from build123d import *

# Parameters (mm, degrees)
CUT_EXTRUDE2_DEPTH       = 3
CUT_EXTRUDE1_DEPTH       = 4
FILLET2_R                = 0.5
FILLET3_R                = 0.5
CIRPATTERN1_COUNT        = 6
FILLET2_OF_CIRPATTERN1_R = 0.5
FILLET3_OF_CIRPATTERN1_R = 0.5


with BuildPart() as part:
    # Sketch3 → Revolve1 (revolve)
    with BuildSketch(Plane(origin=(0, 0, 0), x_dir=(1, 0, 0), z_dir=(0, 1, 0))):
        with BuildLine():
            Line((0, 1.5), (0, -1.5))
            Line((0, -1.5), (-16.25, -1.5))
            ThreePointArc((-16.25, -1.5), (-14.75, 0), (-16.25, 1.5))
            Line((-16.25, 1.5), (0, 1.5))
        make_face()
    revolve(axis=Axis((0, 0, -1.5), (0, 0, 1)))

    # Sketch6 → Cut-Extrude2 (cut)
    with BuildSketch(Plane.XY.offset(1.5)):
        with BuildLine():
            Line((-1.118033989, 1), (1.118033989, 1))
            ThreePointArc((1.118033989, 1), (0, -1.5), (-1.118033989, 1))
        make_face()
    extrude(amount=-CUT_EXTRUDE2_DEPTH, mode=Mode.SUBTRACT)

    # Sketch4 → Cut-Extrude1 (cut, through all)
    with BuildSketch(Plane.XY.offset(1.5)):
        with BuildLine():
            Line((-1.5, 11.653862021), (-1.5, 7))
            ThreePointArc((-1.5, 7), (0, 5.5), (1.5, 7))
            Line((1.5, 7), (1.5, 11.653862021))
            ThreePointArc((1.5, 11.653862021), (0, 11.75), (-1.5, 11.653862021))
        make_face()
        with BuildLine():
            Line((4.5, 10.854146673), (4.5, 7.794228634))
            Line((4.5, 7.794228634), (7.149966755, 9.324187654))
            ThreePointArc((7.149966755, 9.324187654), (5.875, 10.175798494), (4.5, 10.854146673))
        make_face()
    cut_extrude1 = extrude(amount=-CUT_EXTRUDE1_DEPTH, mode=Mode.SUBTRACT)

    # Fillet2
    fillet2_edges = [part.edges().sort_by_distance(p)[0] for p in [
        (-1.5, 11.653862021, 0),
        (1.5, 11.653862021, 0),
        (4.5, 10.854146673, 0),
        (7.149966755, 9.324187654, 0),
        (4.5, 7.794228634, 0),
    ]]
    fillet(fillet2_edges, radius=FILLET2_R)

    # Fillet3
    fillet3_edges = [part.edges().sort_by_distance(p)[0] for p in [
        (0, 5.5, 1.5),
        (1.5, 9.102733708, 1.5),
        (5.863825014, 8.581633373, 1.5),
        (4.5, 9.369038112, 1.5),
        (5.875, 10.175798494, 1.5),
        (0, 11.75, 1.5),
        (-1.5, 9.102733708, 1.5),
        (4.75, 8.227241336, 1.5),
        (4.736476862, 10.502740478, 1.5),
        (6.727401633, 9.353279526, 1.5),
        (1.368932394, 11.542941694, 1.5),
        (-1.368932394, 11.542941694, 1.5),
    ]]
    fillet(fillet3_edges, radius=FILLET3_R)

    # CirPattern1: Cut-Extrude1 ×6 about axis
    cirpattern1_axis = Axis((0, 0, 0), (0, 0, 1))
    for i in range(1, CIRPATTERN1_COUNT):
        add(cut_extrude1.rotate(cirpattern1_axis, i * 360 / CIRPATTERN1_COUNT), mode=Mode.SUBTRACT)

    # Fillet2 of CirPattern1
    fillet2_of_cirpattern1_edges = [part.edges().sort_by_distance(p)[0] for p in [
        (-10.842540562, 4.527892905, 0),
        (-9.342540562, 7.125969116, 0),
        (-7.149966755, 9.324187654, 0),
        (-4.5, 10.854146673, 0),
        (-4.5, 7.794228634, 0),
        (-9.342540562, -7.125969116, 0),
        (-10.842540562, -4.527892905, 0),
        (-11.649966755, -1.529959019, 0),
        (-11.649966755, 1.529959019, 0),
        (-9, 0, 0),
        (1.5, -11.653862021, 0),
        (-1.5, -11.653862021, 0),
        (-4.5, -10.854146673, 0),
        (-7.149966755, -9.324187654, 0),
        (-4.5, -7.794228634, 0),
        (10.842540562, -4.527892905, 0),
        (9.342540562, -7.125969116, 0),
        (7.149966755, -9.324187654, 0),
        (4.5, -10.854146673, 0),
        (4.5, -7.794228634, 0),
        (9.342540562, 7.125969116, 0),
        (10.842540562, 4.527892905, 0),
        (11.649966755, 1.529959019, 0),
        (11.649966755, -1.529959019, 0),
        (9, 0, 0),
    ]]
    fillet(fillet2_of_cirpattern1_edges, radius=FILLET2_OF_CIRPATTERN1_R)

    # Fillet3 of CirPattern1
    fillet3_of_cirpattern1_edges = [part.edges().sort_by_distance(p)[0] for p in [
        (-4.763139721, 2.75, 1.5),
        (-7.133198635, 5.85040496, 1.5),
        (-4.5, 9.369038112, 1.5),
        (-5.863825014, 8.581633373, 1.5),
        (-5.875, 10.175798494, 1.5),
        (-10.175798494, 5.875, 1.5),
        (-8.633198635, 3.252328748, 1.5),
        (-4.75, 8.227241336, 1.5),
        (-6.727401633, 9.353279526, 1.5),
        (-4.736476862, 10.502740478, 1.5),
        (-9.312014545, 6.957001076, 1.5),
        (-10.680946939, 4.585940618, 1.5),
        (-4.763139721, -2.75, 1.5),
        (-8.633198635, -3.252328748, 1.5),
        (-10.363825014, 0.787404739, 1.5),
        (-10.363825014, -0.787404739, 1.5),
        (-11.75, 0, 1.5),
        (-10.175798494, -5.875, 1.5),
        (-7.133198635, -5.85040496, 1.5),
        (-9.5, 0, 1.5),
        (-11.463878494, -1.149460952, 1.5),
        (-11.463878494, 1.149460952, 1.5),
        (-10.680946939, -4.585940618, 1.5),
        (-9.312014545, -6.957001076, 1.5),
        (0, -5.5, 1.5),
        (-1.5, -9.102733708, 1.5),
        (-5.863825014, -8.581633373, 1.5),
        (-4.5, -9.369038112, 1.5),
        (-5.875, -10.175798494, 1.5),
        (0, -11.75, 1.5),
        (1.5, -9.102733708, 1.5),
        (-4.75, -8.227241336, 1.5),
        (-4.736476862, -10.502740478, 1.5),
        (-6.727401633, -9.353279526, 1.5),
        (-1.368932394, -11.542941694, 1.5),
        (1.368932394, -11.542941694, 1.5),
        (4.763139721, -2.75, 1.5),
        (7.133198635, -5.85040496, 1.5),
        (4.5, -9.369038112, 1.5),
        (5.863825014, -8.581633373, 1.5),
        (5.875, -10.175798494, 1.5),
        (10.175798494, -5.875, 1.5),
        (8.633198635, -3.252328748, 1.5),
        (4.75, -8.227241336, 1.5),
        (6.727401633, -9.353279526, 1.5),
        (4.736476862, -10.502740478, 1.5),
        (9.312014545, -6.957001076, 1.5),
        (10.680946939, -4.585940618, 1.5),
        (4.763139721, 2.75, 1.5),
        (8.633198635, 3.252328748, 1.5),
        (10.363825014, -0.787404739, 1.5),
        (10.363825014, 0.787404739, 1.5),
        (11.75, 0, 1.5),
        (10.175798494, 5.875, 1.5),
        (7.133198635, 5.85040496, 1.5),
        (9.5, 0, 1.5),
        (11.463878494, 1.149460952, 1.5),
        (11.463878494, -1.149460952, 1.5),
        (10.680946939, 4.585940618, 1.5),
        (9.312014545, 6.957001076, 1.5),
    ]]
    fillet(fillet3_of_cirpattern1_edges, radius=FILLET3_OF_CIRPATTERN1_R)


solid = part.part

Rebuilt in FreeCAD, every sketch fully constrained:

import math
import FreeCAD as App
import Part
import Sketcher

V = App.Vector
Q = App.Units.Quantity


def edges_at(feature, points):
    """Names of the edges that pass closest to the given points."""
    edges = feature.Shape.Edges
    near = lambda p: min(range(len(edges)), key=lambda i: edges[i].distToShape(Part.Vertex(*p))[0])
    return sorted({f"Edge{near(p) + 1}" for p in points})

doc = App.newDocument("Part")
params = doc.addObject("Spreadsheet::Sheet", "Params")
for row, (alias, value) in enumerate([
    ("sketch1_radius", "1.5 mm"),
    ("sketch1_width", "16.25 mm"),
    ("revolution_angle", "360 deg"),
    ("sketch2_radius", "1.5 mm"),
    ("pocket1_length", "3 mm"),
    ("sketch3_radius", "1.5 mm"),
    ("sketch3_radius2", "11.75 mm"),
    ("fillet_radius", "0.5 mm"),
    ("fillet2_radius", "0.5 mm"),
    ("fillet3_radius", "0.5 mm"),
    ("fillet4_radius", "0.5 mm"),
], start=1):
    params.set(f"A{row}", alias)
    params.set(f"B{row}", "=" + value)
    params.setAlias(f"B{row}", alias)

body = doc.addObject("PartDesign::Body", "Body")

# Sketch on XZ plane
sketch1 = body.newObject("Sketcher::SketchObject", "Sketch")
sketch1.AttachmentSupport = (doc.getObject("XZ_Plane"), [""])
sketch1.MapMode = "FlatFace"
sketch1.addGeometry([
    Part.LineSegment(V(0, 1.5, 0), V(0, -1.5, 0)),
    Part.LineSegment(V(0, -1.5, 0), V(-16.2, -1.5, 0)),
    Part.ArcOfCircle(Part.Circle(V(-16.2, 0, 0), V(0, 0, 1), 1.5), math.radians(-90), math.radians(90)),
    Part.LineSegment(V(-16.2, 1.5, 0), V(0, 1.5, 0)),
], False)
sketch1.addConstraint([
    Sketcher.Constraint("Coincident", 0, 2, 1, 1),
    Sketcher.Constraint("Tangent", 1, 2, 2, 1),
    Sketcher.Constraint("Tangent", 2, 2, 3, 1),
    Sketcher.Constraint("Coincident", 3, 2, 0, 1),
    Sketcher.Constraint("Vertical", 0),
    Sketcher.Constraint("Horizontal", 1),
    Sketcher.Constraint("Horizontal", 3),
    Sketcher.Constraint("Symmetric", 0, 2, 3, 2, -1, 1),
    Sketcher.Constraint("Radius", 2, Q("1.5 mm")),
    Sketcher.Constraint("DistanceX", 1, 2, 1, 1, Q("16.25 mm")),
])
sketch1.setExpression("Constraints[8]", "Params.sketch1_radius")
sketch1.setExpression("Constraints[9]", "Params.sketch1_width")
revolution = body.newObject("PartDesign::Revolution", "Revolution")
revolution.Profile = sketch1
revolution.ReferenceAxis = (sketch1, ["V_Axis"])
revolution.setExpression("Angle", "Params.revolution_angle")

# Sketch on XY plane
sketch2 = body.newObject("Sketcher::SketchObject", "Sketch001")
sketch2.AttachmentSupport = (doc.getObject("XY_Plane"), [""])
sketch2.MapMode = "FlatFace"
sketch2.AttachmentOffset = App.Placement(V(0, 0, 1.5), App.Rotation())
sketch2.addGeometry([
    Part.LineSegment(V(1.1, 1, 0), V(-1.1, 1, 0)),
    Part.ArcOfCircle(Part.Circle(V(0, 0, 0), V(0, 0, 1), 1.5), math.radians(138), math.radians(402)),
], False)
sketch2.addConstraint([
    Sketcher.Constraint("Coincident", 0, 1, 1, 2),
    Sketcher.Constraint("Coincident", 1, 1, 0, 2),
    Sketcher.Constraint("Horizontal", 0),
    Sketcher.Constraint("Coincident", 1, 3, -1, 1),
    Sketcher.Constraint("Radius", 1, Q("1.5 mm")),
    Sketcher.Constraint("DistanceY", -1, 1, 0, 1, Q("1 mm")),
])
sketch2.setExpression("Constraints[4]", "Params.sketch2_radius")
pocket1 = body.newObject("PartDesign::Pocket", "Pocket")
pocket1.Profile = sketch2
pocket1.setExpression("Length", "Params.pocket1_length")

# Sketch on XY plane
sketch3 = body.newObject("Sketcher::SketchObject", "Sketch002")
sketch3.AttachmentSupport = (doc.getObject("XY_Plane"), [""])
sketch3.MapMode = "FlatFace"
sketch3.AttachmentOffset = App.Placement(V(0, 0, 1.5), App.Rotation())
sketch3.addGeometry([
    Part.LineSegment(V(-1.5, 11.7, 0), V(-1.5, 7, 0)),  # 0
    Part.ArcOfCircle(Part.Circle(V(0, 7, 0), V(0, 0, 1), 1.5), math.radians(180), math.radians(360)),  # 1
    Part.LineSegment(V(1.5, 7, 0), V(1.5, 11.7, 0)),  # 2
    Part.ArcOfCircle(Part.Circle(V(0, 0, 0), V(0, 0, 1), 11.8), math.radians(82.67), math.radians(97.33)),  # 3
    Part.LineSegment(V(4.5, 10.9, 0), V(4.5, 7.8, 0)),  # 4
    Part.LineSegment(V(4.5, 7.8, 0), V(7.1, 9.3, 0)),  # 5
    Part.ArcOfCircle(Part.Circle(V(0, 0, 0), V(0, 0, 1), 11.8), math.radians(52.52), math.radians(67.48)),  # 6
], False)
sketch3.addConstraint([
    Sketcher.Constraint("Tangent", 0, 2, 1, 1),
    Sketcher.Constraint("Tangent", 1, 2, 2, 1),
    Sketcher.Constraint("Coincident", 2, 2, 3, 1),
    Sketcher.Constraint("Coincident", 3, 2, 0, 1),
    Sketcher.Constraint("Coincident", 4, 2, 5, 1),
    Sketcher.Constraint("Coincident", 5, 2, 6, 1),
    Sketcher.Constraint("Coincident", 6, 2, 4, 1),
    Sketcher.Constraint("Vertical", 0),
    Sketcher.Constraint("Vertical", 2),
    Sketcher.Constraint("Vertical", 4),
    Sketcher.Constraint("Coincident", 3, 3, -1, 1),
    Sketcher.Constraint("Coincident", 6, 3, -1, 1),
    Sketcher.Constraint("Equal", 3, 6),
    Sketcher.Constraint("PointOnObject", 1, 3, -2),
    Sketcher.Constraint("Radius", 1, Q("1.5 mm")),
    Sketcher.Constraint("Angle", 5, Q("30 deg")),
    Sketcher.Constraint("Radius", 3, Q("11.75 mm")),
    Sketcher.Constraint("DistanceY", -1, 1, 1, 3, Q("7 mm")),
    Sketcher.Constraint("DistanceX", 1, 2, 4, 2, Q("3 mm")),
    Sketcher.Constraint("DistanceY", 4, 2, 4, 1, Q("3.059918 mm")),
])
sketch3.setExpression("Constraints[14]", "Params.sketch3_radius")
sketch3.setExpression("Constraints[16]", "Params.sketch3_radius2")
pocket2 = body.newObject("PartDesign::Pocket", "Pocket001")
pocket2.Profile = sketch3
pocket2.Type = "ThroughAll"
doc.recompute()

fillet = body.newObject("PartDesign::Fillet", "Fillet")
fillet.Base = (pocket2, edges_at(pocket2, [
    (-1.5, 11.654, 0),
    (1.5, 11.654, 0),
    (4.5, 10.854, 0),
    (7.15, 9.324, 0),
    (4.5, 7.794, 0),
]))
fillet.setExpression("Radius", "Params.fillet_radius")
doc.recompute()

fillet2 = body.newObject("PartDesign::Fillet", "Fillet001")
fillet2.Base = (fillet, edges_at(fillet, [
    (0, 5.5, 1.5),
    (1.5, 9.103, 1.5),
    (5.864, 8.582, 1.5),
    (4.5, 9.369, 1.5),
    (5.875, 10.176, 1.5),
    (0, 11.75, 1.5),
    (-1.5, 9.103, 1.5),
    (4.75, 8.227, 1.5),
    (4.736, 10.503, 1.5),
    (6.727, 9.353, 1.5),
    (1.369, 11.543, 1.5),
    (-1.369, 11.543, 1.5),
]))
fillet2.setExpression("Radius", "Params.fillet2_radius")
doc.recompute()

polarpattern = body.newObject("PartDesign::PolarPattern", "PolarPattern")
polarpattern.Originals = [pocket2]
polarpattern.Axis = (doc.getObject("Z_Axis"), [""])
polarpattern.Angle = 360
polarpattern.Occurrences = 6
body.Tip = polarpattern
doc.recompute()

fillet3 = body.newObject("PartDesign::Fillet", "Fillet002")
fillet3.Base = (polarpattern, edges_at(polarpattern, [
    (-10.843, 4.528, 0),
    (-9.343, 7.126, 0),
    (-7.15, 9.324, 0),
    (-4.5, 10.854, 0),
    (-4.5, 7.794, 0),
    (-9.343, -7.126, 0),
    (-10.843, -4.528, 0),
    (-11.65, -1.53, 0),
    (-11.65, 1.53, 0),
    (-9, 0, 0),
    (1.5, -11.654, 0),
    (-1.5, -11.654, 0),
    (-4.5, -10.854, 0),
    (-7.15, -9.324, 0),
    (-4.5, -7.794, 0),
    (10.843, -4.528, 0),
    (9.343, -7.126, 0),
    (7.15, -9.324, 0),
    (4.5, -10.854, 0),
    (4.5, -7.794, 0),
    (9.343, 7.126, 0),
    (10.843, 4.528, 0),
    (11.65, 1.53, 0),
    (11.65, -1.53, 0),
    (9, 0, 0),
]))
fillet3.setExpression("Radius", "Params.fillet3_radius")
doc.recompute()

fillet4 = body.newObject("PartDesign::Fillet", "Fillet003")
fillet4.Base = (fillet3, edges_at(fillet3, [
    (-4.763, 2.75, 1.5),
    (-7.133, 5.85, 1.5),
    (-4.5, 9.369, 1.5),
    (-5.864, 8.582, 1.5),
    (-5.875, 10.176, 1.5),
    (-10.176, 5.875, 1.5),
    (-8.633, 3.252, 1.5),
    (-4.75, 8.227, 1.5),
    (-6.727, 9.353, 1.5),
    (-4.736, 10.503, 1.5),
    (-9.312, 6.957, 1.5),
    (-10.681, 4.586, 1.5),
    (-4.763, -2.75, 1.5),
    (-8.633, -3.252, 1.5),
    (-10.364, 0.787, 1.5),
    (-10.364, -0.787, 1.5),
    (-11.75, 0, 1.5),
    (-10.176, -5.875, 1.5),
    (-7.133, -5.85, 1.5),
    (-9.5, 0, 1.5),
    (-11.464, -1.149, 1.5),
    (-11.464, 1.149, 1.5),
    (-10.681, -4.586, 1.5),
    (-9.312, -6.957, 1.5),
    (0, -5.5, 1.5),
    (-1.5, -9.103, 1.5),
    (-5.864, -8.582, 1.5),
    (-4.5, -9.369, 1.5),
    (-5.875, -10.176, 1.5),
    (0, -11.75, 1.5),
    (1.5, -9.103, 1.5),
    (-4.75, -8.227, 1.5),
    (-4.736, -10.503, 1.5),
    (-6.727, -9.353, 1.5),
    (-1.369, -11.543, 1.5),
    (1.369, -11.543, 1.5),
    (4.763, -2.75, 1.5),
    (7.133, -5.85, 1.5),
    (4.5, -9.369, 1.5),
    (5.864, -8.582, 1.5),
    (5.875, -10.176, 1.5),
    (10.176, -5.875, 1.5),
    (8.633, -3.252, 1.5),
    (4.75, -8.227, 1.5),
    (6.727, -9.353, 1.5),
    (4.736, -10.503, 1.5),
    (9.312, -6.957, 1.5),
    (10.681, -4.586, 1.5),
    (4.763, 2.75, 1.5),
    (8.633, 3.252, 1.5),
    (10.364, -0.787, 1.5),
    (10.364, 0.787, 1.5),
    (11.75, 0, 1.5),
    (10.176, 5.875, 1.5),
    (7.133, 5.85, 1.5),
    (9.5, 0, 1.5),
    (11.464, 1.149, 1.5),
    (11.464, -1.149, 1.5),
    (10.681, 4.586, 1.5),
    (9.312, 6.957, 1.5),
]))
fillet4.setExpression("Radius", "Params.fillet4_radius")

doc.recompute()
